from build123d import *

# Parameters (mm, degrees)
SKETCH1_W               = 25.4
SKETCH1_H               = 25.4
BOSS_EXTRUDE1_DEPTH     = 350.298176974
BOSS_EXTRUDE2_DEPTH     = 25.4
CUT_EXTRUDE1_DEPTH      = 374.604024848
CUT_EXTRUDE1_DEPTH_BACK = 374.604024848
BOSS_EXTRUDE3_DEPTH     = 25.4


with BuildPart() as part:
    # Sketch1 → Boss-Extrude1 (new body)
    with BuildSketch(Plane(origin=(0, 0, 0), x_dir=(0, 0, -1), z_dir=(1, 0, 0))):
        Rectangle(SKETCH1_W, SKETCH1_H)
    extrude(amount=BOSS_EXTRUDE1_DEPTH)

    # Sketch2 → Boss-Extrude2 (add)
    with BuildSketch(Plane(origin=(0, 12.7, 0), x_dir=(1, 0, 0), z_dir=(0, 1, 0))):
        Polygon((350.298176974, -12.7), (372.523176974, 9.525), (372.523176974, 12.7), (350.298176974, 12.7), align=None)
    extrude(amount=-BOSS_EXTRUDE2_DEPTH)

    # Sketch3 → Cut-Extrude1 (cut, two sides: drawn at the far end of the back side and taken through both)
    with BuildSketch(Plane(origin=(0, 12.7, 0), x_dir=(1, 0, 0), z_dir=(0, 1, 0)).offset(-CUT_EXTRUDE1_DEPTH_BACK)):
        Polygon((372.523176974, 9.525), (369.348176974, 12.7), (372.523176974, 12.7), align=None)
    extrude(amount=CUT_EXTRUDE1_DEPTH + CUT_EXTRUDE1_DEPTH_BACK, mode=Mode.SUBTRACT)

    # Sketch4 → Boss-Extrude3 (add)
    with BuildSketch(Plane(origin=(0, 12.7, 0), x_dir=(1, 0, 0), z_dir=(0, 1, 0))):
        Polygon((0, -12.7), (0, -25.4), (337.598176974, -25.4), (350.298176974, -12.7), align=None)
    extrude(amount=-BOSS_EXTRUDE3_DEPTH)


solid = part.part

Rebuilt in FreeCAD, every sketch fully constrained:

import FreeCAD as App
import Part
import Sketcher

V = App.Vector
Q = App.Units.Quantity

doc = App.newDocument("Part")
body = doc.addObject("PartDesign::Body", "Body")

# Sketch on YZ plane
sketch1 = body.newObject("Sketcher::SketchObject", "Sketch")
sketch1.AttachmentSupport = (doc.getObject("YZ_Plane"), [""])
sketch1.MapMode = "FlatFace"
sketch1.addGeometry([
    Part.LineSegment(V(13, 13, 0), V(-13, 13, 0)),
    Part.LineSegment(V(-13, 13, 0), V(-13, -13, 0)),
    Part.LineSegment(V(-13, -13, 0), V(13, -13, 0)),
    Part.LineSegment(V(13, -13, 0), V(13, 13, 0)),
], False)
sketch1.addConstraint([
    Sketcher.Constraint("Coincident", 0, 2, 1, 1),
    Sketcher.Constraint("Coincident", 1, 2, 2, 1),
    Sketcher.Constraint("Coincident", 2, 2, 3, 1),
    Sketcher.Constraint("Coincident", 3, 2, 0, 1),
    Sketcher.Constraint("Horizontal", 0),
    Sketcher.Constraint("Vertical", 1),
    Sketcher.Constraint("Horizontal", 2),
    Sketcher.Constraint("Vertical", 3),
    Sketcher.Constraint("Symmetric", 0, 2, 2, 2, -1, 1),
    Sketcher.Constraint("Equal", 2, 1),
    Sketcher.Constraint("DistanceX", 0, 2, 0, 1, Q("1 in")),
])
pad1 = body.newObject("PartDesign::Pad", "Pad")
pad1.Profile = sketch1
pad1.Length = 350.298177

# Sketch on XZ plane
sketch2 = body.newObject("Sketcher::SketchObject", "Sketch001")
sketch2.AttachmentSupport = (doc.getObject("XZ_Plane"), [""])
sketch2.MapMode = "FlatFace"
sketch2.AttachmentOffset = App.Placement(V(0, 0, -0.5 * 25.4), App.Rotation())
sketch2.addGeometry([
    Part.LineSegment(V(350.3, 12.7, 0), V(372.5, -9.5, 0)),
    Part.LineSegment(V(372.5, -9.5, 0), V(372.5, -12.7, 0)),
    Part.LineSegment(V(372.5, -12.7, 0), V(350.3, -12.7, 0)),
    Part.LineSegment(V(350.3, -12.7, 0), V(350.3, 12.7, 0)),
], False)
sketch2.addConstraint([
    Sketcher.Constraint("Coincident", 0, 2, 1, 1),
    Sketcher.Constraint("Coincident", 1, 2, 2, 1),
    Sketcher.Constraint("Coincident", 2, 2, 3, 1),
    Sketcher.Constraint("Coincident", 3, 2, 0, 1),
    Sketcher.Constraint("Vertical", 1),
    Sketcher.Constraint("Horizontal", 2),
    Sketcher.Constraint("Vertical", 3),
    Sketcher.Constraint("DistanceY", 3, 1, 3, 2, Q("1 in")),
    Sketcher.Constraint("Angle", 0, Q("-45 deg")),
    Sketcher.Constraint("DistanceY", 1, 2, -1, 1, Q("0.5 in")),
    Sketcher.Constraint("DistanceX", 2, 2, 2, 1, Q("0.875 in")),
    Sketcher.Constraint("DistanceX", -1, 1, 0, 2, Q("372.523177 mm")),
])
pad2 = body.newObject("PartDesign::Pad", "Pad001")
pad2.Profile = sketch2
pad2.Length = Q("1 in")

# Sketch on XZ plane
sketch3 = body.newObject("Sketcher::SketchObject", "Sketch002")
sketch3.AttachmentSupport = (doc.getObject("XZ_Plane"), [""])
sketch3.MapMode = "FlatFace"
sketch3.AttachmentOffset = App.Placement(V(0, 0, -0.5 * 25.4), App.Rotation())
sketch3.addGeometry([
    Part.LineSegment(V(369.3, -12.7, 0), V(372.5, -9.5, 0)),
    Part.LineSegment(V(372.5, -9.5, 0), V(372.5, -12.7, 0)),
    Part.LineSegment(V(372.5, -12.7, 0), V(369.3, -12.7, 0)),
], False)
sketch3.addConstraint([
    Sketcher.Constraint("Coincident", 0, 2, 1, 1),
    Sketcher.Constraint("Coincident", 1, 2, 2, 1),
    Sketcher.Constraint("Coincident", 2, 2, 0, 1),
    Sketcher.Constraint("Vertical", 1),
    Sketcher.Constraint("Horizontal", 2),
    Sketcher.Constraint("Equal", 2, 1),
    Sketcher.Constraint("DistanceY", 1, 2, -1, 1, Q("0.5 in")),
    Sketcher.Constraint("DistanceX", 2, 2, 2, 1, Q("0.125 in")),
    Sketcher.Constraint("DistanceX", -1, 1, 0, 2, Q("372.523177 mm")),
])
pocket1 = body.newObject("PartDesign::Pocket", "Pocket")
pocket1.Profile = sketch3
pocket1.Type = "ThroughAll"
pocket1.Midplane = True

# Sketch on XZ plane
sketch4 = body.newObject("Sketcher::SketchObject", "Sketch003")
sketch4.AttachmentSupport = (doc.getObject("XZ_Plane"), [""])
sketch4.MapMode = "FlatFace"
sketch4.AttachmentOffset = App.Placement(V(0, 0, -0.5 * 25.4), App.Rotation())
sketch4.addGeometry([
    Part.LineSegment(V(0, 13, 0), V(0, 25, 0)),
    Part.LineSegment(V(0, 25, 0), V(338, 25, 0)),
    Part.LineSegment(V(338, 25, 0), V(350, 13, 0)),
    Part.LineSegment(V(350, 13, 0), V(0, 13, 0)),
], False)
sketch4.addConstraint([
    Sketcher.Constraint("Coincident", 0, 2, 1, 1),
    Sketcher.Constraint("Coincident", 1, 2, 2, 1),
    Sketcher.Constraint("Coincident", 2, 2, 3, 1),
    Sketcher.Constraint("Coincident", 3, 2, 0, 1),
    Sketcher.Constraint("Vertical", 0),
    Sketcher.Constraint("Horizontal", 1),
    Sketcher.Constraint("Horizontal", 3),
    Sketcher.Constraint("PointOnObject", 0, 2, -2),
    Sketcher.Constraint("DistanceY", 0, 1, 0, 2, Q("0.5 in")),
    Sketcher.Constraint("DistanceY", -1, 1, 0, 2, Q("1 in")),
    Sketcher.Constraint("Angle", 2, Q("-45 deg")),
    Sketcher.Constraint("DistanceX", 1, 1, 1, 2, Q("337.598177 mm")),
])
pad3 = body.newObject("PartDesign::Pad", "Pad002")
pad3.Profile = sketch4
pad3.Length = Q("1 in")

doc.recompute()
